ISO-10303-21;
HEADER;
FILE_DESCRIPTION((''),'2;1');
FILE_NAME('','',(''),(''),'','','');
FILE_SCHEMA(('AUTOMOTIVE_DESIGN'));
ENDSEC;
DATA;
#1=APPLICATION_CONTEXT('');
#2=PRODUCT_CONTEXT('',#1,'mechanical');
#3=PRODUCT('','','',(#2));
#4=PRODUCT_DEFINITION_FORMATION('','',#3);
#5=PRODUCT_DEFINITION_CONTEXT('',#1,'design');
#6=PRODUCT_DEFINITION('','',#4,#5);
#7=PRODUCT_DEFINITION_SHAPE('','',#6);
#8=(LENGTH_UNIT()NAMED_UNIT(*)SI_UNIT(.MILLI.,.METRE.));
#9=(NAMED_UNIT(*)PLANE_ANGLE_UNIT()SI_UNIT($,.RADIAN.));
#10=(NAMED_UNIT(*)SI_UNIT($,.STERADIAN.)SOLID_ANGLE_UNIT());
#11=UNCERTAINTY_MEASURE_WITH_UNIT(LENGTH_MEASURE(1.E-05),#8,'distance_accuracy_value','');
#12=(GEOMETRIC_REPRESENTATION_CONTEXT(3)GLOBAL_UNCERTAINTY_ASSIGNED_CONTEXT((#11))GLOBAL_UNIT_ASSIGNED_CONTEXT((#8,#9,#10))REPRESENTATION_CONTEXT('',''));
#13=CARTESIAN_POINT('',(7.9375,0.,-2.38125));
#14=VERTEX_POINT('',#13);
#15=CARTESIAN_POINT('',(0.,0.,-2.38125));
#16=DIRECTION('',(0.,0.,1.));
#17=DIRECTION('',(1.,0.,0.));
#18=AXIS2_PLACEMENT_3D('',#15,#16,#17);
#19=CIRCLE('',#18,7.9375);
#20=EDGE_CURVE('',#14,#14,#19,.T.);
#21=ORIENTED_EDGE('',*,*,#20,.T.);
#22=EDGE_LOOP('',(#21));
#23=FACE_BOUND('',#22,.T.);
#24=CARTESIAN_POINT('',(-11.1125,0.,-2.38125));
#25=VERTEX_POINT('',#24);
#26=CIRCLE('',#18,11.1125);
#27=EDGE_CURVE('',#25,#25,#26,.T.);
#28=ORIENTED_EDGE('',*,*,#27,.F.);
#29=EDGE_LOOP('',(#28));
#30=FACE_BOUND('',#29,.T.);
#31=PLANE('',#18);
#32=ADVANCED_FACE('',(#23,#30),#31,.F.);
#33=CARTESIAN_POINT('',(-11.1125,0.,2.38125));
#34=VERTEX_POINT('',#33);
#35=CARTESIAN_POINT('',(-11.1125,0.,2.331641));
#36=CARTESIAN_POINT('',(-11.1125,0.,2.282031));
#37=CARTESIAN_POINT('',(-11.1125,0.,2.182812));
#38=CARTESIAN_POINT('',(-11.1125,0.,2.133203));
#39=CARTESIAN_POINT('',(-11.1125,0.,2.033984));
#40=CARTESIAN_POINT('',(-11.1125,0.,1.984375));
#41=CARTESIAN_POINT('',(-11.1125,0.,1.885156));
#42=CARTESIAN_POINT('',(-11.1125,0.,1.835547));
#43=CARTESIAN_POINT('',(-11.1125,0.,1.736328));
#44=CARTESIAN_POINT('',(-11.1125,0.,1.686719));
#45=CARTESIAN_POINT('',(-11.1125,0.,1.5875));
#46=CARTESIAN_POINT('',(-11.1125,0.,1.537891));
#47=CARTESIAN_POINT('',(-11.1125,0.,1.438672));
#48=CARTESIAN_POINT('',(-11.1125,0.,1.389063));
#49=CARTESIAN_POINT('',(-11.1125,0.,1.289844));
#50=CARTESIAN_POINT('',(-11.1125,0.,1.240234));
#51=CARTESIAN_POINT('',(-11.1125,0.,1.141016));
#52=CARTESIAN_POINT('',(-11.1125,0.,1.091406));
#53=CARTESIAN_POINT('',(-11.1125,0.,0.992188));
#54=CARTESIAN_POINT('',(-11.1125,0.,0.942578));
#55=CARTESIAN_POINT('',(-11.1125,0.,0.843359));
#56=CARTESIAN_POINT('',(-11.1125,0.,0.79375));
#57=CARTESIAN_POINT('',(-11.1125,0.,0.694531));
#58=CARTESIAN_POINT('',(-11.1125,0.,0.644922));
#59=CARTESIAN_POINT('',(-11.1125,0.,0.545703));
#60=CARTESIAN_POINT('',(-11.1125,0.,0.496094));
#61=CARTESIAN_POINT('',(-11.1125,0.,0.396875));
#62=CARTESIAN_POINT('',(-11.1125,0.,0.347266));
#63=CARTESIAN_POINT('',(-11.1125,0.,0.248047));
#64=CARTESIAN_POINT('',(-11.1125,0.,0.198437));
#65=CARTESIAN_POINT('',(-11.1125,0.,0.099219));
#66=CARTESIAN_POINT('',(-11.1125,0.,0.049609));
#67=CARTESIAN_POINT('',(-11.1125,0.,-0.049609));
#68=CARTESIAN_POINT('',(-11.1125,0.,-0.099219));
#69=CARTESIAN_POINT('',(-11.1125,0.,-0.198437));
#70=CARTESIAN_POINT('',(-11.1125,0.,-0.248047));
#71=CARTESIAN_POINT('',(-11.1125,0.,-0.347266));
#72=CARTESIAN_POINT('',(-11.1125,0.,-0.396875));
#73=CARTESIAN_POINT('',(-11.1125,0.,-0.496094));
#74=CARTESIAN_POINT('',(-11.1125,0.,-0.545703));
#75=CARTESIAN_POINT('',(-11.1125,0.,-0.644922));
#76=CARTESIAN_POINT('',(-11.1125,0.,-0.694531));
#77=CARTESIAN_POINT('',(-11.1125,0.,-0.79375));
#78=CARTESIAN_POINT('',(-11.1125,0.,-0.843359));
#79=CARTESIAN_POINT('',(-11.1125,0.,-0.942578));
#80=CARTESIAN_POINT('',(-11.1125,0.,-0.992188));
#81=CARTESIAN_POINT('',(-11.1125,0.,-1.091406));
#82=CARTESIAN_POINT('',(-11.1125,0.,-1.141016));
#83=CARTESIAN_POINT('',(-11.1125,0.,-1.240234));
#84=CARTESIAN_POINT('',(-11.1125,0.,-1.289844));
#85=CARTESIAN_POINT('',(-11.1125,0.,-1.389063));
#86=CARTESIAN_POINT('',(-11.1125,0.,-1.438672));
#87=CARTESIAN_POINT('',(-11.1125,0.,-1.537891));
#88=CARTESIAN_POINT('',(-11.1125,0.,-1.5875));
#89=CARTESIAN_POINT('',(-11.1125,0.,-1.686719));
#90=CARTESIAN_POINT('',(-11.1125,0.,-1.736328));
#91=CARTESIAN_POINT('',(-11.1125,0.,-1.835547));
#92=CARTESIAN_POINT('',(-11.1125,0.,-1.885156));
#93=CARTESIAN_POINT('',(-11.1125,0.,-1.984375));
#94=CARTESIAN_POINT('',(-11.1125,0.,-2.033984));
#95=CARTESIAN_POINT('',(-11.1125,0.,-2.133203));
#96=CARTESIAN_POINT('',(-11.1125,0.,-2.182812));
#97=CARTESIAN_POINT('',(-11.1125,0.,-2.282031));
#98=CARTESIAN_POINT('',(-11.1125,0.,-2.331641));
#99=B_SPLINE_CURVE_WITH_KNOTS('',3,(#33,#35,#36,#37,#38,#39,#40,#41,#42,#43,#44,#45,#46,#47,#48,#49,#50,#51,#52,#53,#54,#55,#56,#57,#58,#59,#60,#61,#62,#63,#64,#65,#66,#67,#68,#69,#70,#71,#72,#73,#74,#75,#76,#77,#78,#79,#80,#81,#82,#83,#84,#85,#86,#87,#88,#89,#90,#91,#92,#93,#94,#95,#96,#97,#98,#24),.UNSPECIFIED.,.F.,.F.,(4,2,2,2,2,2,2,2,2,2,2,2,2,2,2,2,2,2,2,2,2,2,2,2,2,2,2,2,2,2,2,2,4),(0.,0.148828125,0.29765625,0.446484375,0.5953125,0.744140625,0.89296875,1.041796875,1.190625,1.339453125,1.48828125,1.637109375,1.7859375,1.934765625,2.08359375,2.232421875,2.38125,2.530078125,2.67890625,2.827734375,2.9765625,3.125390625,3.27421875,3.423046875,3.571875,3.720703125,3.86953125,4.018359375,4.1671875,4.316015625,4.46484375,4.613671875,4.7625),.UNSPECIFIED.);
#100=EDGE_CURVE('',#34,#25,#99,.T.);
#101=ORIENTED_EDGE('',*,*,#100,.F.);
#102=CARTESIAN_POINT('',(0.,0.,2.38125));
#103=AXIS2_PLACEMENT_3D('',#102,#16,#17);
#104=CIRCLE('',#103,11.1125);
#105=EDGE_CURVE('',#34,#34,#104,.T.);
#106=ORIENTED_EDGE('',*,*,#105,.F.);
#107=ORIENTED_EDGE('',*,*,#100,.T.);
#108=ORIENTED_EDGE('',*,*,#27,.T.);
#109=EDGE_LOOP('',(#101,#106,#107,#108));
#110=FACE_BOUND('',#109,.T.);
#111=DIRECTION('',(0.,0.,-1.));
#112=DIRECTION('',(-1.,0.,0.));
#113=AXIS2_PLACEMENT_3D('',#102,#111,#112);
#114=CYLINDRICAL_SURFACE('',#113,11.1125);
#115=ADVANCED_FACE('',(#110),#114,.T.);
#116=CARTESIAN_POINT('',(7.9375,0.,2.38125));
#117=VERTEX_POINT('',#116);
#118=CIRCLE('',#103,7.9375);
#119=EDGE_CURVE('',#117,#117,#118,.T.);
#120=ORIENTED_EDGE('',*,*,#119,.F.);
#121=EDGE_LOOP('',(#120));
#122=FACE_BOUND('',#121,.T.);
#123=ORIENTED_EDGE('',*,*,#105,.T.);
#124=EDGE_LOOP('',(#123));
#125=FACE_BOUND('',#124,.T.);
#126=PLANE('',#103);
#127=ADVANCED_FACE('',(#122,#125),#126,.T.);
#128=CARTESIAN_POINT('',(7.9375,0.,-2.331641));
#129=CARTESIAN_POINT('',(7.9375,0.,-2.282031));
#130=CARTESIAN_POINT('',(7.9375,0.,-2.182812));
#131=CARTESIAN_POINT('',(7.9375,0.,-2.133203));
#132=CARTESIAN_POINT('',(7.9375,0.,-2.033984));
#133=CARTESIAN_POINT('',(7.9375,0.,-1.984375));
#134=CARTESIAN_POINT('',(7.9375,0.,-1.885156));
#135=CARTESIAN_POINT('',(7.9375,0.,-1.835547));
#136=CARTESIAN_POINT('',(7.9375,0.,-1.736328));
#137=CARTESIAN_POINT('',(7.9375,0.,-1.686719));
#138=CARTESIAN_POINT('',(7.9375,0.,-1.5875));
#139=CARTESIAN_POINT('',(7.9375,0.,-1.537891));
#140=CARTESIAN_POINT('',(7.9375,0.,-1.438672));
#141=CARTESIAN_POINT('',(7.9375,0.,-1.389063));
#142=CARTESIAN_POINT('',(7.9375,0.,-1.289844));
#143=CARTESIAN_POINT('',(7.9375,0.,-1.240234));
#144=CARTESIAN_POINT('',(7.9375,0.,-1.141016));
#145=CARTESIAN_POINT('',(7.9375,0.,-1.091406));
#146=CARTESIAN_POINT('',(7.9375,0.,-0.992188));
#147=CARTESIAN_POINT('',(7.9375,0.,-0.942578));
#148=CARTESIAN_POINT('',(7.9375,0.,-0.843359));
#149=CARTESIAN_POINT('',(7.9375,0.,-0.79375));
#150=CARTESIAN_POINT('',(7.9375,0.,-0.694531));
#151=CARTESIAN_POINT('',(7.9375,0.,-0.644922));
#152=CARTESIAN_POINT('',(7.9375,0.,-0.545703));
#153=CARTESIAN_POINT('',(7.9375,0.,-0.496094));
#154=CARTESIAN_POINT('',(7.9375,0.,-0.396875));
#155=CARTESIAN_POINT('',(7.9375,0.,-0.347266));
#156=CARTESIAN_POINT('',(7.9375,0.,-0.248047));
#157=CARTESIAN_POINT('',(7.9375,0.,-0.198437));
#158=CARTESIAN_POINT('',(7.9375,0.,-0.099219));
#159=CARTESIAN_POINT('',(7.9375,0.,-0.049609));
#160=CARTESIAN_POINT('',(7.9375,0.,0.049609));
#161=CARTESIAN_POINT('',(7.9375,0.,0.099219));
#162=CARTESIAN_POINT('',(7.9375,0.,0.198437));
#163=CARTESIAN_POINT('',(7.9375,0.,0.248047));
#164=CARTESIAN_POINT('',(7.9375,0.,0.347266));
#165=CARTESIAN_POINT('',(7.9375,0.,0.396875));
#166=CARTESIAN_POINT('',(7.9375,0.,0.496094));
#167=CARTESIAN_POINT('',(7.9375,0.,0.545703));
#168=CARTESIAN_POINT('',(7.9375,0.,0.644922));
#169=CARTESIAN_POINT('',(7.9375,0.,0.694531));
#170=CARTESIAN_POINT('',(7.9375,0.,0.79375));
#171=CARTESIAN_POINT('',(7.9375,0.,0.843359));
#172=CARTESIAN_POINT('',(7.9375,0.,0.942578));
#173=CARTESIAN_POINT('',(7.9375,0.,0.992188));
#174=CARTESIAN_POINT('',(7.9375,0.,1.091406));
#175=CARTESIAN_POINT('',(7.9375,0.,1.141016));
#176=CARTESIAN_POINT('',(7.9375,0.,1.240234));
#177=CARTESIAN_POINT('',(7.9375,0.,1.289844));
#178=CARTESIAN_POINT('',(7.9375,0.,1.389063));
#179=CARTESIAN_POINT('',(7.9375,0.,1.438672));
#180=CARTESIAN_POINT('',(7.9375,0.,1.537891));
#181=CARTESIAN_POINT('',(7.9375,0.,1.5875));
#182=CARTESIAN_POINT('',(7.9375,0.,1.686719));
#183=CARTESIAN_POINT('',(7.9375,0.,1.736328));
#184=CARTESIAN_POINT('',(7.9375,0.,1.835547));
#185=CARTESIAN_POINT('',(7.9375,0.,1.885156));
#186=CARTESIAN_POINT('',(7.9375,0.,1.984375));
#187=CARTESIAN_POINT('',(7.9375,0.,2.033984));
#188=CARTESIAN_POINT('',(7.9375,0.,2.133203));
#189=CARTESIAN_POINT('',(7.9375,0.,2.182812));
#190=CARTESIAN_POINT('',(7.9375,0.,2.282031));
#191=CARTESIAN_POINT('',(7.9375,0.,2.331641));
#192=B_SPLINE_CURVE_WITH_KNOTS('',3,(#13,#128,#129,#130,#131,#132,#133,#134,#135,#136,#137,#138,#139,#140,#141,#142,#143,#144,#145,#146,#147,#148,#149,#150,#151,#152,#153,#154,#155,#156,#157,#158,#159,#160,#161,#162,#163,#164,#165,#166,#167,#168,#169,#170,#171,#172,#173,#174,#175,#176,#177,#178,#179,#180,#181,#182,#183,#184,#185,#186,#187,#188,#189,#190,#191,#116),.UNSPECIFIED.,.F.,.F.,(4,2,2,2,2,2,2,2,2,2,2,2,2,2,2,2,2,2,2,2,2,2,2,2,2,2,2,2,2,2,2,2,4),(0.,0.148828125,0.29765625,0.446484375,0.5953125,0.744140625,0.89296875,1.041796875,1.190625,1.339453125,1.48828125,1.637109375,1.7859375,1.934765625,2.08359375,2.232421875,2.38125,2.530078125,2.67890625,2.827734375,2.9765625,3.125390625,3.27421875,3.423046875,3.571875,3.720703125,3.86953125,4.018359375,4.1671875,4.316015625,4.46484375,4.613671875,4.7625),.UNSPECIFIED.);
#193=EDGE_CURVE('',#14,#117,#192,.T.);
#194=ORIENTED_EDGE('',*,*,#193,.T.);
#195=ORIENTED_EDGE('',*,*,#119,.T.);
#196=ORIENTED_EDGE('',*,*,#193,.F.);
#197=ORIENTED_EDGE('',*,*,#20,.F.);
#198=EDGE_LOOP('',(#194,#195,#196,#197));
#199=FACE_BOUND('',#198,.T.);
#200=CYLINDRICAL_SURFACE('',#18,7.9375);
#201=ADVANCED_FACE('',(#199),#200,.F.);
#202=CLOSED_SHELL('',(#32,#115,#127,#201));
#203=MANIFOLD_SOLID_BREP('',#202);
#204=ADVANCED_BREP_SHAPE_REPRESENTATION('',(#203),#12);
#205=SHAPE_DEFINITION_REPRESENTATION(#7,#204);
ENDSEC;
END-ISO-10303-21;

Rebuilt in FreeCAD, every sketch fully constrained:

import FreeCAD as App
import Part
import Sketcher
Q = App.Units.Quantity

doc = App.newDocument("Part")
body = doc.addObject("PartDesign::Body", "Body")

# Sketch on XY plane
sketch1 = doc.addObject("Sketcher::SketchObject", "Sketch")
body.addObject(sketch1)
sketch1.AttachmentSupport = (doc.XY_Plane, [""])
sketch1.MapMode = "FlatFace"
sketch1.addGeometry(Part.Circle(App.Vector(0, 0, 0), App.Vector(0, 0, 1), 11), False)
sketch1.addGeometry(Part.Circle(App.Vector(0, 0, 0), App.Vector(0, 0, 1), 6), False)
sketch1.addConstraint(Sketcher.Constraint("Coincident", 0, 3, -1, 1))
sketch1.addConstraint(Sketcher.Constraint("Coincident", 1, 3, -1, 1))
sketch1.addConstraint(Sketcher.Constraint("Diameter", 1, Q("0.5 in")))
sketch1.addConstraint(Sketcher.Constraint("Diameter", 0, Q("0.875 in")))
pad1 = doc.addObject("PartDesign::Pad", "Pad")
body.addObject(pad1)
pad1.Profile = sketch1
pad1.Length = Q("0.1875 in")
pad1.Midplane = True

# Sketch on XY plane
sketch2 = doc.addObject("Sketcher::SketchObject", "Sketch001")
body.addObject(sketch2)
sketch2.AttachmentSupport = (doc.XY_Plane, [""])
sketch2.MapMode = "FlatFace"
sketch2.AttachmentOffset = App.Placement(App.Vector(0, 0, 0.09375 * 25.4), App.Rotation())
sketch2.addGeometry(Part.Circle(App.Vector(0, 0, 0), App.Vector(0, 0, 1), 8), False)
sketch2.addConstraint(Sketcher.Constraint("Coincident", 0, 3, -1, 1))
sketch2.addConstraint(Sketcher.Constraint("Diameter", 0, Q("0.625 in")))
pocket1 = doc.addObject("PartDesign::Pocket", "Pocket")
body.addObject(pocket1)
pocket1.Profile = sketch2
pocket1.Type = "ThroughAll"

doc.recompute()
